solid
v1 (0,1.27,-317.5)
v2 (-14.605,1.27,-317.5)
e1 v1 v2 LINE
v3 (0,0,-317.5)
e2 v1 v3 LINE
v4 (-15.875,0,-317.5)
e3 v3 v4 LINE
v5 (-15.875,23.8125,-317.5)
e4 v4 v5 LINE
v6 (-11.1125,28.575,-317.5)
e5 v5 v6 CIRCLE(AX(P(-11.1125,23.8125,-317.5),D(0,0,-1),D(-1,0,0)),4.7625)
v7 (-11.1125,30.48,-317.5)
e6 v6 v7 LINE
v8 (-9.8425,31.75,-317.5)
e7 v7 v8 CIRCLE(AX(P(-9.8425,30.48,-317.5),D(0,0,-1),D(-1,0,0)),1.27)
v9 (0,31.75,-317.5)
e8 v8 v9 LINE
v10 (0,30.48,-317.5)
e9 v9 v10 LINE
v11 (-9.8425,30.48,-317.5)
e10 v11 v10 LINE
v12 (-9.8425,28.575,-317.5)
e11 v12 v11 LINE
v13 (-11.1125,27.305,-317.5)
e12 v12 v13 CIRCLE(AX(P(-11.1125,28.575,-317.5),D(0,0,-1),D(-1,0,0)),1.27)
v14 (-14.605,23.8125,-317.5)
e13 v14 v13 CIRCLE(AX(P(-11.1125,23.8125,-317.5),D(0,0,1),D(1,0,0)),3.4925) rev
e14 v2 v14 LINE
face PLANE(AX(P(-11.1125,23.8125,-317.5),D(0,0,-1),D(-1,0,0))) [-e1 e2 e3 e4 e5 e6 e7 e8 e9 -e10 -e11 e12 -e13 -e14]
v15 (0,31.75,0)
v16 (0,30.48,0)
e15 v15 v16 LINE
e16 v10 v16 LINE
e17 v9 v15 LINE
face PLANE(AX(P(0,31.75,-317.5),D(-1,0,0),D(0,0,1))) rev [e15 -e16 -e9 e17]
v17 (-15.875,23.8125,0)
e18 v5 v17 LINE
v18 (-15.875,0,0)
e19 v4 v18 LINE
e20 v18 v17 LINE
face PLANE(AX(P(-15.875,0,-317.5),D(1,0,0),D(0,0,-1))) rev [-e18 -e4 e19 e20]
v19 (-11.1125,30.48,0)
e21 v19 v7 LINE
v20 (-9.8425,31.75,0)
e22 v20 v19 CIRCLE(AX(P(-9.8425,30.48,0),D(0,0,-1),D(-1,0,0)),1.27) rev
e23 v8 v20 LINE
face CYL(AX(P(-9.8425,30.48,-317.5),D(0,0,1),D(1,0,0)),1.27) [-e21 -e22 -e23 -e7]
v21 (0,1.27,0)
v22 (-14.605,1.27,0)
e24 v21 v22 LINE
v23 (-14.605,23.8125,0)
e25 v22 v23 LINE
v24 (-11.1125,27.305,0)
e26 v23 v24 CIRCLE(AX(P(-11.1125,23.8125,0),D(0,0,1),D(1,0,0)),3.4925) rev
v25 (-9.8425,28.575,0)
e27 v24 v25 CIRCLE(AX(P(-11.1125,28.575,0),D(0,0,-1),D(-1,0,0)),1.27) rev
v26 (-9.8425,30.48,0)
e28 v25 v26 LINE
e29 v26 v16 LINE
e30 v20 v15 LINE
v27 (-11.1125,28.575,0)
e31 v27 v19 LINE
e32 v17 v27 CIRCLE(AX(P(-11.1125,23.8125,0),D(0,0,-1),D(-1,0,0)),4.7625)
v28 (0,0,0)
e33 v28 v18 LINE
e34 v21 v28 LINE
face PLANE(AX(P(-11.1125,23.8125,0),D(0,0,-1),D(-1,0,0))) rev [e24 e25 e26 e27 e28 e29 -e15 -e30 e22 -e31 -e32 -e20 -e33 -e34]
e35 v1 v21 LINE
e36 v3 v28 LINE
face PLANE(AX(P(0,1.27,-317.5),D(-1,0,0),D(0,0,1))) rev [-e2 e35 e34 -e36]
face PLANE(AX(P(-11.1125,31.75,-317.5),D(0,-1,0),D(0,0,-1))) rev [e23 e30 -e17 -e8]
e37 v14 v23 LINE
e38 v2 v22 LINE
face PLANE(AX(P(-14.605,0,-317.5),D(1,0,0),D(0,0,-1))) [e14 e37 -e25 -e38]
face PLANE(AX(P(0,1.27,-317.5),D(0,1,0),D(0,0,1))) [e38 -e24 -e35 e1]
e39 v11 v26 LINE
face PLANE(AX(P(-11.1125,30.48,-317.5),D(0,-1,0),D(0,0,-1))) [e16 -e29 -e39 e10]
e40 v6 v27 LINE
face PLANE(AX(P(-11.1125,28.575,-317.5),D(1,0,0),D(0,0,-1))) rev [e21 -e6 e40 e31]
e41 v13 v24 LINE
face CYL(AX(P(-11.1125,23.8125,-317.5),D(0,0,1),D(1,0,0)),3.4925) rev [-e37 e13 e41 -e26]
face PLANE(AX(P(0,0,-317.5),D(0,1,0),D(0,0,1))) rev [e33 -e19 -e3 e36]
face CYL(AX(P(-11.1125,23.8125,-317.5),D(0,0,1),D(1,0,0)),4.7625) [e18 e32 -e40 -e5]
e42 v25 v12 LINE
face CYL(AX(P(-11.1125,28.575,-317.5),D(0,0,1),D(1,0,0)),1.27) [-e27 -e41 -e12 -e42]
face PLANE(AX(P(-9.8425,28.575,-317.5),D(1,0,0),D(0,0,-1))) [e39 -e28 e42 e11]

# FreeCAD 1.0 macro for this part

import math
import FreeCAD as App
import Part
import Sketcher
from FreeCAD import Vector
Q = App.Units.Quantity


def edges_at(feature, points):
    """Names of the edges that pass closest to the given points."""
    edges = feature.Shape.Edges
    near = lambda p: min(range(len(edges)), key=lambda i: edges[i].distToShape(Part.Vertex(*p))[0])
    return sorted({f"Edge{near(p) + 1}" for p in points})

doc = App.newDocument("Part")
body = doc.addObject("PartDesign::Body", "Body")

# Sketch on XY plane
sketch1 = doc.addObject("Sketcher::SketchObject", "Sketch")
body.addObject(sketch1)
sketch1.AttachmentSupport = (doc.XY_Plane, [""])
sketch1.MapMode = "FlatFace"
sketch1.addGeometry([
    Part.LineSegment(Vector(-15.9, 0, 0), Vector(0, 0, 0)),  # 0
    Part.LineSegment(Vector(0, 0, 0), Vector(0, 1.3, 0)),  # 1
    Part.LineSegment(Vector(0, 1.3, 0), Vector(-14.6, 1.3, 0)),  # 2
    Part.LineSegment(Vector(-14.6, 1.3, 0), Vector(-14.6, 23.8, 0)),  # 3
    Part.ArcOfCircle(Part.Circle(Vector(-11.1, 23.8, 0), Vector(0, 0, 1), 3.5), math.radians(69), math.radians(180)),  # 4
    Part.LineSegment(Vector(-9.8, 27.1, 0), Vector(-9.8, 30.5, 0)),  # 5
    Part.LineSegment(Vector(-9.8, 30.5, 0), Vector(0, 30.5, 0)),  # 6
    Part.LineSegment(Vector(0, 30.5, 0), Vector(0, 31.8, 0)),  # 7
    Part.LineSegment(Vector(0, 31.8, 0), Vector(-11.1, 31.8, 0)),  # 8
    Part.LineSegment(Vector(-11.1, 31.8, 0), Vector(-11.1, 28.6, 0)),  # 9
    Part.ArcOfCircle(Part.Circle(Vector(-11.1, 23.8, 0), Vector(0, 0, 1), 4.8), math.radians(90), math.radians(180)),  # 10
    Part.LineSegment(Vector(-15.9, 23.8, 0), Vector(-15.9, 0, 0)),  # 11
], False)
sketch1.addConstraint([
    Sketcher.Constraint("Coincident", 0, 2, 1, 1),
    Sketcher.Constraint("Coincident", 1, 2, 2, 1),
    Sketcher.Constraint("Coincident", 2, 2, 3, 1),
    Sketcher.Constraint("Tangent", 3, 2, 4, 2),
    Sketcher.Constraint("Coincident", 4, 1, 5, 1),
    Sketcher.Constraint("Coincident", 5, 2, 6, 1),
    Sketcher.Constraint("Coincident", 6, 2, 7, 1),
    Sketcher.Constraint("Coincident", 7, 2, 8, 1),
    Sketcher.Constraint("Coincident", 8, 2, 9, 1),
    Sketcher.Constraint("Coincident", 9, 2, 10, 1),
    Sketcher.Constraint("Tangent", 10, 2, 11, 1),
    Sketcher.Constraint("Coincident", 11, 2, 0, 1),
    Sketcher.Constraint("Horizontal", 0),
    Sketcher.Constraint("Vertical", 1),
    Sketcher.Constraint("Horizontal", 2),
    Sketcher.Constraint("Vertical", 3),
    Sketcher.Constraint("Vertical", 5),
    Sketcher.Constraint("Horizontal", 6),
    Sketcher.Constraint("Vertical", 7),
    Sketcher.Constraint("Horizontal", 8),
    Sketcher.Constraint("Vertical", 9),
    Sketcher.Constraint("Vertical", 11),
    Sketcher.Constraint("Coincident", 0, 2, -1, 1),
    Sketcher.Constraint("Coincident", 10, 3, 4, 3),
    Sketcher.Constraint("PointOnObject", 6, 2, -2),
    Sketcher.Constraint("Vertical", 10, 3, 8, 2),
    Sketcher.Constraint("Equal", 1, 7),
    Sketcher.Constraint("Radius", 10, Q("0.1875 in")),
    Sketcher.Constraint("DistanceY", 1, 1, 1, 2, Q("0.05 in")),
    Sketcher.Constraint("DistanceY", -1, 1, 5, 2, Q("1.2 in")),
    Sketcher.Constraint("Radius", 4, Q("0.1375 in")),
    Sketcher.Constraint("DistanceX", 0, 1, 0, 2, Q("0.625 in")),
    Sketcher.Constraint("DistanceY", 9, 2, 9, 1, Q("0.125 in")),
    Sketcher.Constraint("DistanceX", 10, 3, 4, 1, Q("0.05 in")),
])
pad1 = doc.addObject("PartDesign::Pad", "Pad")
body.addObject(pad1)
pad1.Profile = sketch1
pad1.Length = Q("12.5 in")
pad1.Reversed = True
doc.recompute()

fillet = doc.addObject("PartDesign::Fillet", "Fillet")
body.addObject(fillet)
fillet.Base = (pad1, edges_at(pad1, [(-9.842, 27.066, -158.75), (-11.113, 31.75, -158.75)]))
fillet.Radius = Q("0.05 in")

doc.recompute()
